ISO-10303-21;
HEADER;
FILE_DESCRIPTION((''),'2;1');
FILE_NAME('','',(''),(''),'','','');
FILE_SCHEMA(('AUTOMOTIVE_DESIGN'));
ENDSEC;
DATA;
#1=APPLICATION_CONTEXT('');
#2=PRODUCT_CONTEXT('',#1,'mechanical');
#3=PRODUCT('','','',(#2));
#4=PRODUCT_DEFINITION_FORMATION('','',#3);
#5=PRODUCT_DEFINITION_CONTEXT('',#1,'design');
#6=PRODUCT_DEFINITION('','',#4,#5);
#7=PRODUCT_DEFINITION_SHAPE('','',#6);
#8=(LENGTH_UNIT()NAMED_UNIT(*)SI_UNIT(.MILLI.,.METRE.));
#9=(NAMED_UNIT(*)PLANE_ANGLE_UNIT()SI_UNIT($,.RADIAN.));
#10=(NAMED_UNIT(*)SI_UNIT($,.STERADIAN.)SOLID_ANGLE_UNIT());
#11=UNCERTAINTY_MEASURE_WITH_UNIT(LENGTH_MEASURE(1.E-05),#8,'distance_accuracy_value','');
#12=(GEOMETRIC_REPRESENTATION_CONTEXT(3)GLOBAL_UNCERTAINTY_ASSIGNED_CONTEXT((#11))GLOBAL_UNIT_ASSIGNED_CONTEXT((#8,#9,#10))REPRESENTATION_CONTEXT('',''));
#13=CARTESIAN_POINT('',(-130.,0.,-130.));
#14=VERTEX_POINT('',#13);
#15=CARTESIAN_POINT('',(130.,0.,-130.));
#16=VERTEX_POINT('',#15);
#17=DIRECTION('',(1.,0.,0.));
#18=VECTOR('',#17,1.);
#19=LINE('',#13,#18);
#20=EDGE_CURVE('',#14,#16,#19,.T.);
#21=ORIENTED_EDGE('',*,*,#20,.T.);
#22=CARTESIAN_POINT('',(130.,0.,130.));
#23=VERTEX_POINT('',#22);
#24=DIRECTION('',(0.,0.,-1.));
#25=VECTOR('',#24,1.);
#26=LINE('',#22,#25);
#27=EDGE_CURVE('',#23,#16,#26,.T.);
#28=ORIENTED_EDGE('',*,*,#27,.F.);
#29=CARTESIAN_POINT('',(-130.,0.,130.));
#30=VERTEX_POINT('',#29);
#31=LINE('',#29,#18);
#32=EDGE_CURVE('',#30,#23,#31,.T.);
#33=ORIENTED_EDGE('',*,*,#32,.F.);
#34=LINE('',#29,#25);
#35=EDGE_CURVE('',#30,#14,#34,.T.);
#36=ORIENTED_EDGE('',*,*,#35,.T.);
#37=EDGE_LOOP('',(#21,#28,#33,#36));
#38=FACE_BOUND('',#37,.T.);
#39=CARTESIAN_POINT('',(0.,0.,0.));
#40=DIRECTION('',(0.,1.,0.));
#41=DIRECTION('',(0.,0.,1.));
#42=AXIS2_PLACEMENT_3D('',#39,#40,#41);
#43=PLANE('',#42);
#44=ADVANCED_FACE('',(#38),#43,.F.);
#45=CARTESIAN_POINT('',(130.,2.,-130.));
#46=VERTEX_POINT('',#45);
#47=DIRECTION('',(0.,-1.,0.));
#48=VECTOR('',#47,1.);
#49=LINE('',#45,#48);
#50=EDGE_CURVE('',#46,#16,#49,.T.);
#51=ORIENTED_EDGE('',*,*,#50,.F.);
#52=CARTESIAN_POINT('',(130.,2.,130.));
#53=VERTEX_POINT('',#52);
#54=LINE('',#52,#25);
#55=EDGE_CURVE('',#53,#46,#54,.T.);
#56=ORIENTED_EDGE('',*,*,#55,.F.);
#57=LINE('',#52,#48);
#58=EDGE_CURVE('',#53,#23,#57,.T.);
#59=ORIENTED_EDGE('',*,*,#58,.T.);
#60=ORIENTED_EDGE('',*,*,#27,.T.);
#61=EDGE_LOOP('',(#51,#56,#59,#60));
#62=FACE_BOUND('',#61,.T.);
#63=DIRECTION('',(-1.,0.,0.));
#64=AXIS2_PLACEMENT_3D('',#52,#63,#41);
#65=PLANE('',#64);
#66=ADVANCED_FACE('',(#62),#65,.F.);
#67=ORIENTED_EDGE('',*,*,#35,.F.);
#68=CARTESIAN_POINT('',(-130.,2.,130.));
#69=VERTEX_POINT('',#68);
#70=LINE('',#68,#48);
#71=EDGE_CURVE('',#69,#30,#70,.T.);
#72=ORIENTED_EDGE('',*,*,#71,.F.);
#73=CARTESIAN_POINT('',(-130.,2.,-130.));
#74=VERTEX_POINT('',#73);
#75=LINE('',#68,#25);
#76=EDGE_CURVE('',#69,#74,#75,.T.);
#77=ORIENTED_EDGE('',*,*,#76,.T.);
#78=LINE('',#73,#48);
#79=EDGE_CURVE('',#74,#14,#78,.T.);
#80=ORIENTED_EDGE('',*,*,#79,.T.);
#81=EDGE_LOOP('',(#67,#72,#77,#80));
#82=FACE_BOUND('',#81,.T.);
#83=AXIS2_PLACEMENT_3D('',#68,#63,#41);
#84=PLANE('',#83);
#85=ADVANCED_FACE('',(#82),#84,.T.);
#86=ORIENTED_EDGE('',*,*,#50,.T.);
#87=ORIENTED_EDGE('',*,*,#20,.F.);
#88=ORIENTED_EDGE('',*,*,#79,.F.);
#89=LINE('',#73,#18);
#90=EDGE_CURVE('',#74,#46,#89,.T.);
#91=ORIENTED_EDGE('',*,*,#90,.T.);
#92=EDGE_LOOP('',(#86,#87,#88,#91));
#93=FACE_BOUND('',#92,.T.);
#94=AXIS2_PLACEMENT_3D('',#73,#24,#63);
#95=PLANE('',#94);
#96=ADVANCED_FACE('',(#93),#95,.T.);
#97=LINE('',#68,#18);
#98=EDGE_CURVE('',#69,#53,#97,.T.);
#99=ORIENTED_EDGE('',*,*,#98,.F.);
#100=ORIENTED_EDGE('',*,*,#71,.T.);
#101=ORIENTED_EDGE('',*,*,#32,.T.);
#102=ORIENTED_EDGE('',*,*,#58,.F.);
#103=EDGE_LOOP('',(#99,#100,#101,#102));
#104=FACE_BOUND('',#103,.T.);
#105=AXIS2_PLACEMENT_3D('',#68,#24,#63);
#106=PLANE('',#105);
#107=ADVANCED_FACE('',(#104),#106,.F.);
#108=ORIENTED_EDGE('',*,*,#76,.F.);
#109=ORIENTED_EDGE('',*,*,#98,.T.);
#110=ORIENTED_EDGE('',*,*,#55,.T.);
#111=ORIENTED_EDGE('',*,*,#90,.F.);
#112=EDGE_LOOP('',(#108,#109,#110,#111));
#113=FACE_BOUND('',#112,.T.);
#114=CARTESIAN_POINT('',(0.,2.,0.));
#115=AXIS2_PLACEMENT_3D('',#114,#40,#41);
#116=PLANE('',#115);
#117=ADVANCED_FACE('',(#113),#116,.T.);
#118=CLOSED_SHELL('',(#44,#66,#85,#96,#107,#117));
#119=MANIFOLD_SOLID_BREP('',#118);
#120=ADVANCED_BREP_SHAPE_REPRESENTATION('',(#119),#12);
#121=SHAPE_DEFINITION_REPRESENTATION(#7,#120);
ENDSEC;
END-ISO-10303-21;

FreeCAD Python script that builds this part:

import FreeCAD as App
import Part
import Sketcher

doc = App.newDocument("Part")
params = doc.addObject("Spreadsheet::Sheet", "Params")
for row, (alias, value) in enumerate([
    ("sketch1_width", "260 mm"),
    ("pad1_length", "2 mm"),
], start=1):
    params.set(f"A{row}", alias)
    params.set(f"B{row}", "=" + value)
    params.setAlias(f"B{row}", alias)

body = doc.addObject("PartDesign::Body", "Body")

sketch1 = doc.addObject("Sketcher::SketchObject", "Sketch")
body.addObject(sketch1)
sketch1.AttachmentSupport = (doc.XZ_Plane, [""])
sketch1.MapMode = "FlatFace"
sketch1.addGeometry(Part.LineSegment(App.Vector(-130, -130, 0), App.Vector(-130, 130, 0)), False)
sketch1.addGeometry(Part.LineSegment(App.Vector(-130, 130, 0), App.Vector(130, 130, 0)), False)
sketch1.addGeometry(Part.LineSegment(App.Vector(130, 130, 0), App.Vector(130, -130, 0)), False)
sketch1.addGeometry(Part.LineSegment(App.Vector(130, -130, 0), App.Vector(-130, -130, 0)), False)
sketch1.addConstraint(Sketcher.Constraint("Coincident", 0, 2, 1, 1))
sketch1.addConstraint(Sketcher.Constraint("Coincident", 1, 2, 2, 1))
sketch1.addConstraint(Sketcher.Constraint("Coincident", 2, 2, 3, 1))
sketch1.addConstraint(Sketcher.Constraint("Coincident", 3, 2, 0, 1))
sketch1.addConstraint(Sketcher.Constraint("Vertical", 0))
sketch1.addConstraint(Sketcher.Constraint("Horizontal", 1))
sketch1.addConstraint(Sketcher.Constraint("Vertical", 2))
sketch1.addConstraint(Sketcher.Constraint("Horizontal", 3))
sketch1.addConstraint(Sketcher.Constraint("Symmetric", 0, 2, 2, 2, -1, 1))
sketch1.addConstraint(Sketcher.Constraint("Equal", 3, 0))
sketch1.addConstraint(Sketcher.Constraint("DistanceX", 1, 1, 1, 2, 260.0))
sketch1.setExpression("Constraints[10]", "Params.sketch1_width")
pad1 = doc.addObject("PartDesign::Pad", "Pad")
body.addObject(pad1)
pad1.Profile = sketch1
pad1.setExpression("Length", "Params.pad1_length")
pad1.Reversed = True

doc.recompute()
